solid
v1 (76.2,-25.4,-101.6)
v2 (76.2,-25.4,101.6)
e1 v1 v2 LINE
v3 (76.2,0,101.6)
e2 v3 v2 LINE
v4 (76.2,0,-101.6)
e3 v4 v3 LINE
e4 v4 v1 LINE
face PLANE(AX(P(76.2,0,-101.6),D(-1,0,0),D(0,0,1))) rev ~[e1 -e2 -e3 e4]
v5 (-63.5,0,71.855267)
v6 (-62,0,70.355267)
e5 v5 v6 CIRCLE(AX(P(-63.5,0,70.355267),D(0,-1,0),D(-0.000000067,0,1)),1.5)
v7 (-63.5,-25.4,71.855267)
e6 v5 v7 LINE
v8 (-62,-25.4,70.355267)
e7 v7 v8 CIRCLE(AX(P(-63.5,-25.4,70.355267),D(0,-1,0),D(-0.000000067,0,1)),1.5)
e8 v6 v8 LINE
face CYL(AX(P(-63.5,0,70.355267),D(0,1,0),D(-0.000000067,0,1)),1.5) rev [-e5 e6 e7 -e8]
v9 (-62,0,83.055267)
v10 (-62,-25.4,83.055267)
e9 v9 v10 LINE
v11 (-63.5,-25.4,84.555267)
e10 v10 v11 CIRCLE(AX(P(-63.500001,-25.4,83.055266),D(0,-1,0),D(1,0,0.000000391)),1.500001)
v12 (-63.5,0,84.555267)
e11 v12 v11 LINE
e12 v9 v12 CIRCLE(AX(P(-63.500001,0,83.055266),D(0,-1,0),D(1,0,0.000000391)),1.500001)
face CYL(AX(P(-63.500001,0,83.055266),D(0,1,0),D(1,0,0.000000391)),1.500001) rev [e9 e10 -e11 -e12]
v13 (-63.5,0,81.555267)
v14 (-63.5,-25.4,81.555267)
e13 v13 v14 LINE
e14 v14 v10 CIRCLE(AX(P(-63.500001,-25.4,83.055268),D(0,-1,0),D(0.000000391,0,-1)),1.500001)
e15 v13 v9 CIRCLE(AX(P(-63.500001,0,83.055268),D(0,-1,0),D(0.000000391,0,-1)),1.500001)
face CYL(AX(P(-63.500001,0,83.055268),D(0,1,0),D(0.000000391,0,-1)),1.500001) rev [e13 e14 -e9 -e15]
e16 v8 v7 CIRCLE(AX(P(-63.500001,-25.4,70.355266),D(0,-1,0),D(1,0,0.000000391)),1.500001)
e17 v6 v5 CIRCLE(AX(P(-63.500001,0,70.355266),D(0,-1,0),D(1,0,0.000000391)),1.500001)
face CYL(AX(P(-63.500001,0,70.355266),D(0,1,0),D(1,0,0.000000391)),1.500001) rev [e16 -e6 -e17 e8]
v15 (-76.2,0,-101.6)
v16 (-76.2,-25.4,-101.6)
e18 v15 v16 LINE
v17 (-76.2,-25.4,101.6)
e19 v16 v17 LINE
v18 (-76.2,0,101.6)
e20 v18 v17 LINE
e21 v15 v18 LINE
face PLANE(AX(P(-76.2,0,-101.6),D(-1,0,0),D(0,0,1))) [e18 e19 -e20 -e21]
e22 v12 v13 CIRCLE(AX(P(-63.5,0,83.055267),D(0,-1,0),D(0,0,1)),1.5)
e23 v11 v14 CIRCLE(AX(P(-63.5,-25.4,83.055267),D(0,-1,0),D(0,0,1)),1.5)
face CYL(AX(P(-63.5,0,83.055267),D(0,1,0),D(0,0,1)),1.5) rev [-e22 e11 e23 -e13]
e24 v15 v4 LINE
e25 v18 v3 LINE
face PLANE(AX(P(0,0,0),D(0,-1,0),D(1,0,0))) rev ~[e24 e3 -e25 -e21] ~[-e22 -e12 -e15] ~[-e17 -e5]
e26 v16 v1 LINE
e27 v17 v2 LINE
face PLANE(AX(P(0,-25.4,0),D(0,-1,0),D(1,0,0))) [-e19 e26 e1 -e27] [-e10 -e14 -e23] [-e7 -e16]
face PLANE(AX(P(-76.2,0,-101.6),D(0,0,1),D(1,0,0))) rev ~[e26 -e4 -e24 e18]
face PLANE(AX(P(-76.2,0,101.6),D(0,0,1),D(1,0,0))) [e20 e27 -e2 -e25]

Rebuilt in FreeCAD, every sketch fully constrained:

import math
import FreeCAD as App
import Part
import Sketcher

V = App.Vector
Q = App.Units.Quantity


def add_polygon(sketch, points):
    """Adds a closed chain of lines whose ends are joined by coincident constraints."""
    first, n = sketch.GeometryCount, len(points)
    for a, b in zip(points, points[1:] + points[:1]):
        sketch.addGeometry(Part.LineSegment(App.Vector(*a, 0), App.Vector(*b, 0)), False)
    for i in range(n):
        sketch.addConstraint(Sketcher.Constraint("Coincident", first + i, 2, first + (i + 1) % n, 1))

doc = App.newDocument("Part")
body = doc.addObject("PartDesign::Body", "Body")

# Sketch on XZ plane
sketch1 = body.newObject("Sketcher::SketchObject", "Sketch")
sketch1.AttachmentSupport = (doc.getObject("XZ_Plane"), [""])
sketch1.MapMode = "FlatFace"
add_polygon(sketch1, [(-76.2, 101.6), (-76.2, -101.6), (76.2, -101.6), (76.2, 101.6)])  # lines 0-3
sketch1.addConstraint(Sketcher.Constraint("Vertical", 0))
sketch1.addConstraint(Sketcher.Constraint("Horizontal", 1))
sketch1.addConstraint(Sketcher.Constraint("Vertical", 2))
sketch1.addConstraint(Sketcher.Constraint("Horizontal", 3))
sketch1.addConstraint(Sketcher.Constraint("Symmetric", 0, 2, 2, 2, -1, 1))
sketch1.addConstraint(Sketcher.Constraint("DistanceX", 1, 1, 1, 2, Q("6 in")))
sketch1.addConstraint(Sketcher.Constraint("DistanceY", 0, 2, 0, 1, Q("8 in")))
pad1 = body.newObject("PartDesign::Pad", "Pad")
pad1.Profile = sketch1
pad1.Length = Q("1 in")

# Sketch on XZ plane
sketch2 = body.newObject("Sketcher::SketchObject", "Sketch001")
sketch2.AttachmentSupport = (doc.getObject("XZ_Plane"), [""])
sketch2.MapMode = "FlatFace"
sketch2.addGeometry(Part.ArcOfCircle(Part.Circle(V(-63.5, 83.055267, 0), V(0, 0, 1), 1.5), math.radians(90), math.radians(270)), False)
sketch2.addGeometry(Part.ArcOfCircle(Part.Circle(V(-63.500001, 83.055268, 0), V(0, 0, 1), 1.500001), math.radians(-89.999978), math.radians(-0.000022)), False)
sketch2.addGeometry(Part.ArcOfCircle(Part.Circle(V(-63.500001, 83.055266, 0), V(0, 0, 1), 1.500001), math.radians(0.000022), math.radians(89.999978)), False)
sketch2.addGeometry(Part.ArcOfCircle(Part.Circle(V(-63.500001, 70.355266, 0), V(0, 0, 1), 1.500001), math.radians(0.000022), math.radians(89.999978)), False)
sketch2.addGeometry(Part.ArcOfCircle(Part.Circle(V(-63.5, 70.355267, 0), V(0, 0, 1), 1.5), math.radians(90.000004), math.radians(359.999996)), False)
sketch2.addConstraint(Sketcher.Constraint("Tangent", 0, 2, 1, 1))
sketch2.addConstraint(Sketcher.Constraint("Tangent", 1, 2, 2, 1))
sketch2.addConstraint(Sketcher.Constraint("Tangent", 2, 2, 0, 1))
sketch2.addConstraint(Sketcher.Constraint("Tangent", 3, 1, 4, 2))
sketch2.addConstraint(Sketcher.Constraint("Coincident", 4, 1, 3, 2))
sketch2.addConstraint(Sketcher.Constraint("Equal", 2, 3))
sketch2.addConstraint(Sketcher.Constraint("Horizontal", 2, 3, 1, 2))
sketch2.addConstraint(Sketcher.Constraint("Horizontal", 4, 3, 3, 1))
sketch2.addConstraint(Sketcher.Constraint("Vertical", 2, 3, 3, 3))
sketch2.addConstraint(Sketcher.Constraint("Vertical", 4, 3, 0, 2))
sketch2.addConstraint(Sketcher.Constraint("Vertical", 0, 2, 2, 2))
sketch2.addConstraint(Sketcher.Constraint("Vertical", 2, 2, 4, 1))
sketch2.addConstraint(Sketcher.Constraint("DistanceX", 0, 3, -1, 1, Q("2.5 in")))
sketch2.addConstraint(Sketcher.Constraint("DistanceY", 3, 3, 2, 3, Q("0.5 in")))
sketch2.addConstraint(Sketcher.Constraint("Radius", 0, Q("1.5 mm")))
sketch2.addConstraint(Sketcher.Constraint("DistanceY", -1, 1, 0, 3, Q("83.055267 mm")))
pocket1 = body.newObject("PartDesign::Pocket", "Pocket")
pocket1.Profile = sketch2
pocket1.Length = Q("1 in")
pocket1.Reversed = True

doc.recompute()
